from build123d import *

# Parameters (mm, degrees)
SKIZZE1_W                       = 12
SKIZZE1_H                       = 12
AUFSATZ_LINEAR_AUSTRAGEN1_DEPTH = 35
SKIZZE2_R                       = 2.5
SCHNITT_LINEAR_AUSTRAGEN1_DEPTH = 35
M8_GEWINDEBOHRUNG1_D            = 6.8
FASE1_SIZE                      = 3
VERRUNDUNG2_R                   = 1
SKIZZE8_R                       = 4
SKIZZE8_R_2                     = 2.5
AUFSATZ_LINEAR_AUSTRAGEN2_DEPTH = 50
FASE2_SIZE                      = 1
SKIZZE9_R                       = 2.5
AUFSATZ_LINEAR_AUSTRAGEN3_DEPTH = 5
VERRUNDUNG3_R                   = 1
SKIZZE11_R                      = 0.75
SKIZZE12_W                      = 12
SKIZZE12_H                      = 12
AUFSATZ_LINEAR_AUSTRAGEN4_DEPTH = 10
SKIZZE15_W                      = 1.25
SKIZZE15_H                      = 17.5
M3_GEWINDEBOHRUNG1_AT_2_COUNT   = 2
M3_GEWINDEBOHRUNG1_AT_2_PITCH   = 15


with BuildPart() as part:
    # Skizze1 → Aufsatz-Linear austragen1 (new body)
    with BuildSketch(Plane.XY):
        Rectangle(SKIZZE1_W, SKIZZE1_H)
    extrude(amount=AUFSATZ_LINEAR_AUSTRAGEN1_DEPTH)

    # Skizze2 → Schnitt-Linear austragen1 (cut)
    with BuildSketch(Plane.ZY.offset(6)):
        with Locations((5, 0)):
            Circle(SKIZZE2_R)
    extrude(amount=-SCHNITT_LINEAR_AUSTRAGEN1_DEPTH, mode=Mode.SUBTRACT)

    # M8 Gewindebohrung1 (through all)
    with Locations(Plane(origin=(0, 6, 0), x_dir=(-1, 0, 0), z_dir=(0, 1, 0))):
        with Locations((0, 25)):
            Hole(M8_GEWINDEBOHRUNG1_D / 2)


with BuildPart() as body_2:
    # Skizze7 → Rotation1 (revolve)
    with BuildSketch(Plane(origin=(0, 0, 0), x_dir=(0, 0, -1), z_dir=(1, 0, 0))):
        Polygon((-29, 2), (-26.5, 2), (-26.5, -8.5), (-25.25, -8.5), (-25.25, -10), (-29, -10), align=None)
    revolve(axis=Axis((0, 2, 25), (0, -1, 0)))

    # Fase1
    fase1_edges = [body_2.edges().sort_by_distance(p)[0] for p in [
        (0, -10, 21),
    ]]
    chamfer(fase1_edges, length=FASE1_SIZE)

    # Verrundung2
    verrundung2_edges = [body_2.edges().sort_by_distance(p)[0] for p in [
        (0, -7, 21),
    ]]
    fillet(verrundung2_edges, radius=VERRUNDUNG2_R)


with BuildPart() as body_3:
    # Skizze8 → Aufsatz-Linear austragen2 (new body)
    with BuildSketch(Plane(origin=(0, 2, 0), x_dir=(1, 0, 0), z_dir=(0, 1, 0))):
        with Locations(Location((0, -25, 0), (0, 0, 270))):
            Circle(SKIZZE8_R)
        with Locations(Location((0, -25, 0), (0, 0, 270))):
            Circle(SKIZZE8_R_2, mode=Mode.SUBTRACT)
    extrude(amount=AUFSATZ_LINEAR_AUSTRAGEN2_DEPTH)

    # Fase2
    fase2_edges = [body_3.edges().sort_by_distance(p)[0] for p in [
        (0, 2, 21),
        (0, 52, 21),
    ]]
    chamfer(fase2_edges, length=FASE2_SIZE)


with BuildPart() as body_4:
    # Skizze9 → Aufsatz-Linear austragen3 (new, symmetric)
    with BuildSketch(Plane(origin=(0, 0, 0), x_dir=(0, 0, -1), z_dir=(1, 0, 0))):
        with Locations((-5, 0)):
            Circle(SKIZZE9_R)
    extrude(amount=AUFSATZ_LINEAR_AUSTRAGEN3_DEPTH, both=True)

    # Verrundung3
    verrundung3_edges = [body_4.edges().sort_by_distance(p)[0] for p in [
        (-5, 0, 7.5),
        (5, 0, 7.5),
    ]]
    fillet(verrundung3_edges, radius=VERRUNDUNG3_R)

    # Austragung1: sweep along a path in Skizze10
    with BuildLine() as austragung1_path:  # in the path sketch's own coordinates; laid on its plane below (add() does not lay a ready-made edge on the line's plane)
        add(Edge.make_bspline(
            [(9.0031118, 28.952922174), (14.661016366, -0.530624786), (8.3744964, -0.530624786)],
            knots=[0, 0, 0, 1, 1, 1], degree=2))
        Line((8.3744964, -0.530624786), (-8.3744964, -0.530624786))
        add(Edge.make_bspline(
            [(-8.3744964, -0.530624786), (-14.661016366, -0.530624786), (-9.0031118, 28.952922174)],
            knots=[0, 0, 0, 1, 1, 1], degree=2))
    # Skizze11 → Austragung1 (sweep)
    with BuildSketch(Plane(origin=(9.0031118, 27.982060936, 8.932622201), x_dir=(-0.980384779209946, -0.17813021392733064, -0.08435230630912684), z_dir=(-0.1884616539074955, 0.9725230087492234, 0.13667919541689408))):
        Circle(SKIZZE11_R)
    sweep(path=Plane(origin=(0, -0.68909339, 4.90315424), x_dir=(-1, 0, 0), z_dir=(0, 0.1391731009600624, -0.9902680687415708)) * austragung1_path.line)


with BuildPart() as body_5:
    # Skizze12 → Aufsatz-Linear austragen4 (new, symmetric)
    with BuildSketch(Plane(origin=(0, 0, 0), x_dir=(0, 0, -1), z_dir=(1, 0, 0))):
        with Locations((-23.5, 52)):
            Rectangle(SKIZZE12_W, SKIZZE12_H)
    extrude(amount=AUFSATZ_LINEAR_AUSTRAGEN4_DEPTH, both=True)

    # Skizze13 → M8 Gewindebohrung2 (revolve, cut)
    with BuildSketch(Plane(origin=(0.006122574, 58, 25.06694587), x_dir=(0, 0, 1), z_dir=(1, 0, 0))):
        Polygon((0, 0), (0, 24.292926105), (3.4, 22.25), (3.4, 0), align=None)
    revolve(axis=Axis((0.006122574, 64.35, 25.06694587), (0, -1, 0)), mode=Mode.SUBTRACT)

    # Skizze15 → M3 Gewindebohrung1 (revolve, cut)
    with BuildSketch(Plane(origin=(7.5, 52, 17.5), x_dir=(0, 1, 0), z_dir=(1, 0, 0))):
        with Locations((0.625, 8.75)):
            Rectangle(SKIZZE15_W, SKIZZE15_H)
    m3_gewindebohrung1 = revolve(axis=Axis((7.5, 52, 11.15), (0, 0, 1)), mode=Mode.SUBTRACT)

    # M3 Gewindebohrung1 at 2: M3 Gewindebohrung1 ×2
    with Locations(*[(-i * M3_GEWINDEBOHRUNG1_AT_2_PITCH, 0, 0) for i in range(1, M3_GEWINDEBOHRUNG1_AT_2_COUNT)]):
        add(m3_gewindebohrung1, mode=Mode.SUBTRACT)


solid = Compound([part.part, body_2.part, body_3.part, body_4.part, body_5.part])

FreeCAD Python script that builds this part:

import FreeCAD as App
import Part
import Sketcher
from FreeCAD import Vector
Q = App.Units.Quantity


def edges_at(feature, points):
    """Names of the edges that pass closest to the given points."""
    edges = feature.Shape.Edges
    near = lambda p: min(range(len(edges)), key=lambda i: edges[i].distToShape(Part.Vertex(*p))[0])
    return sorted({f"Edge{near(p) + 1}" for p in points})

doc = App.newDocument("Part")
body = doc.addObject("PartDesign::Body", "Body")

# Sketch on XY plane
sketch1 = doc.addObject("Sketcher::SketchObject", "Sketch")
body.addObject(sketch1)
sketch1.AttachmentSupport = (doc.XY_Plane, [""])
sketch1.MapMode = "FlatFace"
sketch1.addGeometry(Part.LineSegment(Vector(-6, 6, 0), Vector(-6, -6, 0)), False)
sketch1.addGeometry(Part.LineSegment(Vector(-6, -6, 0), Vector(6, -6, 0)), False)
sketch1.addGeometry(Part.LineSegment(Vector(6, -6, 0), Vector(6, 6, 0)), False)
sketch1.addGeometry(Part.LineSegment(Vector(6, 6, 0), Vector(-6, 6, 0)), False)
sketch1.addConstraint(Sketcher.Constraint("Coincident", 0, 2, 1, 1))
sketch1.addConstraint(Sketcher.Constraint("Coincident", 1, 2, 2, 1))
sketch1.addConstraint(Sketcher.Constraint("Coincident", 2, 2, 3, 1))
sketch1.addConstraint(Sketcher.Constraint("Coincident", 3, 2, 0, 1))
sketch1.addConstraint(Sketcher.Constraint("Vertical", 0))
sketch1.addConstraint(Sketcher.Constraint("Horizontal", 1))
sketch1.addConstraint(Sketcher.Constraint("Vertical", 2))
sketch1.addConstraint(Sketcher.Constraint("Horizontal", 3))
sketch1.addConstraint(Sketcher.Constraint("Symmetric", 0, 2, 2, 2, -1, 1))
sketch1.addConstraint(Sketcher.Constraint("Equal", 3, 0))
sketch1.addConstraint(Sketcher.Constraint("DistanceX", 1, 1, 1, 2, 12.0))
pad1 = doc.addObject("PartDesign::Pad", "Pad")
body.addObject(pad1)
pad1.Profile = sketch1
pad1.Length = 35

# Sketch on YZ plane
sketch2 = doc.addObject("Sketcher::SketchObject", "Sketch001")
body.addObject(sketch2)
sketch2.AttachmentSupport = (doc.YZ_Plane, [""])
sketch2.MapMode = "FlatFace"
sketch2.AttachmentOffset = App.Placement(Vector(0, 0, -6), App.Rotation())
sketch2.addGeometry(Part.Circle(Vector(0, 5, 0), Vector(0, 0, 1), 2.5), False)
sketch2.addConstraint(Sketcher.Constraint("PointOnObject", 0, 3, -2))
sketch2.addConstraint(Sketcher.Constraint("Diameter", 0, 5.0))
sketch2.addConstraint(Sketcher.Constraint("DistanceY", -1, 1, 0, 3, 5.0))
pocket1 = doc.addObject("PartDesign::Pocket", "Pocket")
body.addObject(pocket1)
pocket1.Profile = sketch2
pocket1.Length = 35
pocket1.Reversed = True

# Sketch on XZ plane
sketch3 = doc.addObject("Sketcher::SketchObject", "Sketch002")
body.addObject(sketch3)
sketch3.AttachmentSupport = (doc.XZ_Plane, [""])
sketch3.MapMode = "FlatFace"
sketch3.AttachmentOffset = App.Placement(Vector(0, 0, -6), App.Rotation())
sketch3.addGeometry(Part.Circle(Vector(0, 25, 0), Vector(0, 0, 1), 3.4), False)
sketch3.addConstraint(Sketcher.Constraint("PointOnObject", 0, 3, -2))
sketch3.addConstraint(Sketcher.Constraint("Diameter", 0, 6.8))
sketch3.addConstraint(Sketcher.Constraint("DistanceY", -1, 1, 0, 3, 25.0))
doc.recompute()
hole = doc.addObject("PartDesign::Hole", "Hole")
body.addObject(hole)
hole.Profile = sketch3
hole.ThreadType = "None"
hole.Diameter = 6.8
hole.DepthType = "ThroughAll"
hole.Reversed = True
body2 = doc.addObject("PartDesign::Body", "Body001")

# Sketch on YZ plane
sketch4 = doc.addObject("Sketcher::SketchObject", "Sketch003")
body2.addObject(sketch4)
sketch4.AttachmentSupport = (doc.getObject("YZ_Plane001"), [""])
sketch4.MapMode = "FlatFace"
sketch4.addGeometry(Part.LineSegment(Vector(2, 26.5, 0), Vector(2, 29, 0)), False)
sketch4.addGeometry(Part.LineSegment(Vector(2, 29, 0), Vector(-10, 29, 0)), False)
sketch4.addGeometry(Part.LineSegment(Vector(-10, 29, 0), Vector(-10, 25.2, 0)), False)
sketch4.addGeometry(Part.LineSegment(Vector(-10, 25.2, 0), Vector(-8.5, 25.2, 0)), False)
sketch4.addGeometry(Part.LineSegment(Vector(-8.5, 25.2, 0), Vector(-8.5, 26.5, 0)), False)
sketch4.addGeometry(Part.LineSegment(Vector(-8.5, 26.5, 0), Vector(2, 26.5, 0)), False)
sketch4.addGeometry(Part.LineSegment(Vector(2, 25, 0), Vector(-10, 25, 0)), True)  # axis
sketch4.addConstraint(Sketcher.Constraint("Coincident", 0, 2, 1, 1))
sketch4.addConstraint(Sketcher.Constraint("Coincident", 1, 2, 2, 1))
sketch4.addConstraint(Sketcher.Constraint("Coincident", 2, 2, 3, 1))
sketch4.addConstraint(Sketcher.Constraint("Coincident", 3, 2, 4, 1))
sketch4.addConstraint(Sketcher.Constraint("Coincident", 4, 2, 5, 1))
sketch4.addConstraint(Sketcher.Constraint("Coincident", 5, 2, 0, 1))
sketch4.addConstraint(Sketcher.Constraint("Vertical", 0))
sketch4.addConstraint(Sketcher.Constraint("Horizontal", 1))
sketch4.addConstraint(Sketcher.Constraint("Vertical", 2))
sketch4.addConstraint(Sketcher.Constraint("Horizontal", 3))
sketch4.addConstraint(Sketcher.Constraint("Vertical", 4))
sketch4.addConstraint(Sketcher.Constraint("Horizontal", 5))
sketch4.addConstraint(Sketcher.Constraint("Horizontal", 6))
sketch4.addConstraint(Sketcher.Constraint("Vertical", 5, 2, 6, 1))
sketch4.addConstraint(Sketcher.Constraint("Vertical", 2, 2, 6, 2))
sketch4.addConstraint(Sketcher.Constraint("DistanceX", 1, 2, 1, 1, 12.0))
sketch4.addConstraint(Sketcher.Constraint("DistanceX", 3, 1, 3, 2, 1.5))
sketch4.addConstraint(Sketcher.Constraint("DistanceY", 0, 1, 0, 2, 2.5))
sketch4.addConstraint(Sketcher.Constraint("DistanceX", -1, 1, 0, 2, 2.0))
sketch4.addConstraint(Sketcher.Constraint("DistanceY", -1, 1, 0, 2, 29.0))
sketch4.addConstraint(Sketcher.Constraint("DistanceY", -1, 1, 6, 1, 25.0))
sketch4.addConstraint(Sketcher.Constraint("DistanceY", 2, 2, 2, 1, 3.75))
revolution = doc.addObject("PartDesign::Revolution", "Revolution")
body2.addObject(revolution)
revolution.Profile = sketch4
revolution.ReferenceAxis = (sketch4, ["Axis0"])
revolution.Angle = 360
doc.recompute()

chamfer = doc.addObject("PartDesign::Chamfer", "Chamfer")
body2.addObject(chamfer)
chamfer.Base = (revolution, edges_at(revolution, [(0, -10, 21)]))
chamfer.Size = 3
doc.recompute()

fillet = doc.addObject("PartDesign::Fillet", "Fillet")
body2.addObject(fillet)
fillet.Base = (chamfer, edges_at(chamfer, [(0, -7, 21)]))
fillet.Radius = 1
body3 = doc.addObject("PartDesign::Body", "Body002")

# Sketch on XZ plane
sketch5 = doc.addObject("Sketcher::SketchObject", "Sketch004")
body3.addObject(sketch5)
sketch5.AttachmentSupport = (doc.getObject("XZ_Plane002"), [""])
sketch5.MapMode = "FlatFace"
sketch5.AttachmentOffset = App.Placement(Vector(0, 0, -2), App.Rotation())
sketch5.addGeometry(Part.Circle(Vector(0, 25, 0), Vector(0, 0, 1), 4), False)
sketch5.addGeometry(Part.Circle(Vector(0, 25, 0), Vector(0, 0, 1), 2.5), False)
sketch5.addConstraint(Sketcher.Constraint("Coincident", 1, 3, 0, 3))
sketch5.addConstraint(Sketcher.Constraint("PointOnObject", 0, 3, -2))
sketch5.addConstraint(Sketcher.Constraint("Diameter", 0, 8.0))
sketch5.addConstraint(Sketcher.Constraint("Diameter", 1, 5.0))
sketch5.addConstraint(Sketcher.Constraint("DistanceY", -1, 1, 0, 3, 25.0))
pad2 = doc.addObject("PartDesign::Pad", "Pad001")
body3.addObject(pad2)
pad2.Profile = sketch5
pad2.Length = 50
pad2.Reversed = True
doc.recompute()

chamfer2 = doc.addObject("PartDesign::Chamfer", "Chamfer001")
body3.addObject(chamfer2)
chamfer2.Base = (pad2, edges_at(pad2, [(0, 2, 21), (0, 52, 21)]))
chamfer2.Size = 1
body4 = doc.addObject("PartDesign::Body", "Body003")

# Sketch on YZ plane
sketch6 = doc.addObject("Sketcher::SketchObject", "Sketch005")
body4.addObject(sketch6)
sketch6.AttachmentSupport = (doc.getObject("YZ_Plane003"), [""])
sketch6.MapMode = "FlatFace"
sketch6.addGeometry(Part.Circle(Vector(0, 5, 0), Vector(0, 0, 1), 2.5), False)
sketch6.addConstraint(Sketcher.Constraint("PointOnObject", 0, 3, -2))
sketch6.addConstraint(Sketcher.Constraint("Diameter", 0, 5.0))
sketch6.addConstraint(Sketcher.Constraint("DistanceY", -1, 1, 0, 3, 5.0))
pad3 = doc.addObject("PartDesign::Pad", "Pad002")
body4.addObject(pad3)
pad3.Profile = sketch6
pad3.Length = 10
pad3.Midplane = True
doc.recompute()

fillet2 = doc.addObject("PartDesign::Fillet", "Fillet001")
body4.addObject(fillet2)
fillet2.Base = (pad3, edges_at(pad3, [(-5, 0, 7.5), (5, 0, 7.5)]))
fillet2.Radius = 1

# Sketch on an angled plane
sketch7 = doc.addObject("Sketcher::SketchObject", "Sketch006")
body4.addObject(sketch7)
sketch7.Placement = App.Placement(Vector(9.003112, 27.982061, 8.932622), App.Rotation(Vector(-0.980384779, -0.178130214, -0.084352306), Vector(-0.057687864, -0.149895377, 0.98701747), Vector(-0.188461654, 0.972523009, 0.136679195), "ZXY"))
sketch7.addGeometry(Part.Circle(Vector(0, 0, 0), Vector(0, 0, 1), 0.8), False)
sketch7.addConstraint(Sketcher.Constraint("Coincident", 0, 3, -1, 1))
sketch7.addConstraint(Sketcher.Constraint("Diameter", 0, 1.5))

# Sketch on an angled plane
sketch8 = doc.addObject("Sketcher::SketchObject", "Sketch007")
body4.addObject(sketch8)
sketch8.Placement = App.Placement(Vector(0, -0.689093, 4.903154), App.Rotation(Vector(0, 0.990268069, 0.139173101), Vector(1.000000001, 0, 0), Vector(0, 0.139173101, -0.990268069), "ZXY"))
sketch8.addGeometry(Part.BSplineCurve([Vector(28.952922, -9.003112, 0), Vector(-0.530625, -14.661016, 0), Vector(-0.530625, -8.374496, 0)], [3, 3], [0, 1], False, 2, [1, 1, 1], False), False)
sketch8.addGeometry(Part.LineSegment(Vector(-0.530625, -8.374496, 0), Vector(-0.530625, 8.374496, 0)), False)
sketch8.addGeometry(Part.BSplineCurve([Vector(-0.530625, 8.374496, 0), Vector(-0.530625, 14.661016, 0), Vector(28.952922, 9.003112, 0)], [3, 3], [0, 1], False, 2, [1, 1, 1], False), False)
sketch8.addConstraint(Sketcher.Constraint("Block", 0))
sketch8.addConstraint(Sketcher.Constraint("Block", 2))
sketch8.addConstraint(Sketcher.Constraint("Coincident", 0, 2, 1, 1))
sketch8.addConstraint(Sketcher.Constraint("Coincident", 1, 2, 2, 1))
doc.recompute()

additivepipe = doc.addObject("PartDesign::AdditivePipe", "AdditivePipe")
body4.addObject(additivepipe)
additivepipe.Profile = sketch7
additivepipe.Spine = (sketch8, ["Edge1", "Edge2", "Edge3"])
body5 = doc.addObject("PartDesign::Body", "Body004")

# Sketch on YZ plane
sketch9 = doc.addObject("Sketcher::SketchObject", "Sketch008")
body5.addObject(sketch9)
sketch9.AttachmentSupport = (doc.getObject("YZ_Plane004"), [""])
sketch9.MapMode = "FlatFace"
sketch9.addGeometry(Part.LineSegment(Vector(58, 30, 0), Vector(46, 30, 0)), False)
sketch9.addGeometry(Part.LineSegment(Vector(46, 30, 0), Vector(46, 18, 0)), False)
sketch9.addGeometry(Part.LineSegment(Vector(46, 18, 0), Vector(58, 18, 0)), False)
sketch9.addGeometry(Part.LineSegment(Vector(58, 18, 0), Vector(58, 30, 0)), False)
sketch9.addConstraint(Sketcher.Constraint("Coincident", 0, 2, 1, 1))
sketch9.addConstraint(Sketcher.Constraint("Coincident", 1, 2, 2, 1))
sketch9.addConstraint(Sketcher.Constraint("Coincident", 2, 2, 3, 1))
sketch9.addConstraint(Sketcher.Constraint("Coincident", 3, 2, 0, 1))
sketch9.addConstraint(Sketcher.Constraint("Horizontal", 0))
sketch9.addConstraint(Sketcher.Constraint("Vertical", 1))
sketch9.addConstraint(Sketcher.Constraint("Horizontal", 2))
sketch9.addConstraint(Sketcher.Constraint("Vertical", 3))
sketch9.addConstraint(Sketcher.Constraint("Equal", 2, 1))
sketch9.addConstraint(Sketcher.Constraint("DistanceX", 0, 2, 0, 1, 12.0))
sketch9.addConstraint(Sketcher.Constraint("DistanceX", -1, 1, 0, 2, 46.0))
sketch9.addConstraint(Sketcher.Constraint("DistanceY", -1, 1, 0, 2, 29.5))
pad4 = doc.addObject("PartDesign::Pad", "Pad003")
body5.addObject(pad4)
pad4.Profile = sketch9
pad4.Length = 20
pad4.Midplane = True

# Sketch on YZ plane
sketch10 = doc.addObject("Sketcher::SketchObject", "Sketch009")
body5.addObject(sketch10)
sketch10.AttachmentSupport = (doc.getObject("YZ_Plane004"), [""])
sketch10.MapMode = "FlatFace"
sketch10.AttachmentOffset = App.Placement(Vector(0, 0, 0.006123), App.Rotation())
sketch10.addGeometry(Part.LineSegment(Vector(33.7, 25.1, 0), Vector(58, 25.1, 0)), False)
sketch10.addGeometry(Part.LineSegment(Vector(58, 25.1, 0), Vector(58, 28.5, 0)), False)
sketch10.addGeometry(Part.LineSegment(Vector(58, 28.5, 0), Vector(35.8, 28.5, 0)), False)
sketch10.addGeometry(Part.LineSegment(Vector(35.8, 28.5, 0), Vector(33.7, 25.1, 0)), False)
sketch10.addGeometry(Part.LineSegment(Vector(58, 25.1, 0), Vector(33.7, 25.1, 0)), True)  # axis
sketch10.addConstraint(Sketcher.Constraint("Coincident", 0, 2, 1, 1))
sketch10.addConstraint(Sketcher.Constraint("Coincident", 1, 2, 2, 1))
sketch10.addConstraint(Sketcher.Constraint("Coincident", 2, 2, 3, 1))
sketch10.addConstraint(Sketcher.Constraint("Coincident", 3, 2, 0, 1))
sketch10.addConstraint(Sketcher.Constraint("Horizontal", 0))
sketch10.addConstraint(Sketcher.Constraint("Vertical", 1))
sketch10.addConstraint(Sketcher.Constraint("Horizontal", 2))
sketch10.addConstraint(Sketcher.Constraint("Horizontal", 4))
sketch10.addConstraint(Sketcher.Constraint("Coincident", 4, 1, 0, 2))
sketch10.addConstraint(Sketcher.Constraint("Equal", 0, 4))
sketch10.addConstraint(Sketcher.Constraint("Angle", 3, Q("-121 deg")))
sketch10.addConstraint(Sketcher.Constraint("DistanceY", 1, 1, 1, 2, 3.4))
sketch10.addConstraint(Sketcher.Constraint("DistanceX", -1, 1, 0, 2, 58.0))
sketch10.addConstraint(Sketcher.Constraint("DistanceX", 2, 2, 2, 1, 22.25))
sketch10.addConstraint(Sketcher.Constraint("DistanceY", -1, 1, 0, 2, 25.066946))
groove = doc.addObject("PartDesign::Groove", "Groove")
body5.addObject(groove)
groove.Profile = sketch10
groove.ReferenceAxis = (sketch10, ["Axis0"])
groove.Angle = 360

# Sketch on YZ plane
sketch11 = doc.addObject("Sketcher::SketchObject", "Sketch010")
body5.addObject(sketch11)
sketch11.AttachmentSupport = (doc.getObject("YZ_Plane004"), [""])
sketch11.MapMode = "FlatFace"
sketch11.AttachmentOffset = App.Placement(Vector(0, 0, 7.5), App.Rotation())
sketch11.addGeometry(Part.LineSegment(Vector(52, 35, 0), Vector(52, 17.5, 0)), False)
sketch11.addGeometry(Part.LineSegment(Vector(52, 17.5, 0), Vector(53.2, 17.5, 0)), False)
sketch11.addGeometry(Part.LineSegment(Vector(53.2, 17.5, 0), Vector(53.2, 35, 0)), False)
sketch11.addGeometry(Part.LineSegment(Vector(53.2, 35, 0), Vector(52, 35, 0)), False)
sketch11.addGeometry(Part.LineSegment(Vector(52, 17.5, 0), Vector(52, 35, 0)), True)  # axis
sketch11.addConstraint(Sketcher.Constraint("Coincident", 0, 2, 1, 1))
sketch11.addConstraint(Sketcher.Constraint("Coincident", 1, 2, 2, 1))
sketch11.addConstraint(Sketcher.Constraint("Coincident", 2, 2, 3, 1))
sketch11.addConstraint(Sketcher.Constraint("Coincident", 3, 2, 0, 1))
sketch11.addConstraint(Sketcher.Constraint("Vertical", 0))
sketch11.addConstraint(Sketcher.Constraint("Horizontal", 1))
sketch11.addConstraint(Sketcher.Constraint("Vertical", 2))
sketch11.addConstraint(Sketcher.Constraint("Horizontal", 3))
sketch11.addConstraint(Sketcher.Constraint("Vertical", 4))
sketch11.addConstraint(Sketcher.Constraint("Coincident", 4, 1, 0, 2))
sketch11.addConstraint(Sketcher.Constraint("Horizontal", 2, 2, 4, 2))
sketch11.addConstraint(Sketcher.Constraint("DistanceY", 0, 2, 0, 1, 17.5))
sketch11.addConstraint(Sketcher.Constraint("DistanceX", -1, 1, 0, 2, 52.0))
sketch11.addConstraint(Sketcher.Constraint("DistanceY", -1, 1, 2, 2, 35.0))
sketch11.addConstraint(Sketcher.Constraint("DistanceX", 1, 1, 1, 2, 1.25))
groove2 = doc.addObject("PartDesign::Groove", "Groove001")
body5.addObject(groove2)
groove2.Profile = sketch11
groove2.ReferenceAxis = (sketch11, ["Axis0"])
groove2.Angle = 360
doc.recompute()

linearpattern = doc.addObject("PartDesign::LinearPattern", "LinearPattern")
body5.addObject(linearpattern)
linearpattern.Originals = [groove2]
linearpattern.Direction = (doc.getObject("X_Axis004"), [""])
linearpattern.Mode = "offset"
linearpattern.Offset = 15
linearpattern.Occurrences = 2
linearpattern.Reversed = True
body5.Tip = linearpattern

doc.recompute()
